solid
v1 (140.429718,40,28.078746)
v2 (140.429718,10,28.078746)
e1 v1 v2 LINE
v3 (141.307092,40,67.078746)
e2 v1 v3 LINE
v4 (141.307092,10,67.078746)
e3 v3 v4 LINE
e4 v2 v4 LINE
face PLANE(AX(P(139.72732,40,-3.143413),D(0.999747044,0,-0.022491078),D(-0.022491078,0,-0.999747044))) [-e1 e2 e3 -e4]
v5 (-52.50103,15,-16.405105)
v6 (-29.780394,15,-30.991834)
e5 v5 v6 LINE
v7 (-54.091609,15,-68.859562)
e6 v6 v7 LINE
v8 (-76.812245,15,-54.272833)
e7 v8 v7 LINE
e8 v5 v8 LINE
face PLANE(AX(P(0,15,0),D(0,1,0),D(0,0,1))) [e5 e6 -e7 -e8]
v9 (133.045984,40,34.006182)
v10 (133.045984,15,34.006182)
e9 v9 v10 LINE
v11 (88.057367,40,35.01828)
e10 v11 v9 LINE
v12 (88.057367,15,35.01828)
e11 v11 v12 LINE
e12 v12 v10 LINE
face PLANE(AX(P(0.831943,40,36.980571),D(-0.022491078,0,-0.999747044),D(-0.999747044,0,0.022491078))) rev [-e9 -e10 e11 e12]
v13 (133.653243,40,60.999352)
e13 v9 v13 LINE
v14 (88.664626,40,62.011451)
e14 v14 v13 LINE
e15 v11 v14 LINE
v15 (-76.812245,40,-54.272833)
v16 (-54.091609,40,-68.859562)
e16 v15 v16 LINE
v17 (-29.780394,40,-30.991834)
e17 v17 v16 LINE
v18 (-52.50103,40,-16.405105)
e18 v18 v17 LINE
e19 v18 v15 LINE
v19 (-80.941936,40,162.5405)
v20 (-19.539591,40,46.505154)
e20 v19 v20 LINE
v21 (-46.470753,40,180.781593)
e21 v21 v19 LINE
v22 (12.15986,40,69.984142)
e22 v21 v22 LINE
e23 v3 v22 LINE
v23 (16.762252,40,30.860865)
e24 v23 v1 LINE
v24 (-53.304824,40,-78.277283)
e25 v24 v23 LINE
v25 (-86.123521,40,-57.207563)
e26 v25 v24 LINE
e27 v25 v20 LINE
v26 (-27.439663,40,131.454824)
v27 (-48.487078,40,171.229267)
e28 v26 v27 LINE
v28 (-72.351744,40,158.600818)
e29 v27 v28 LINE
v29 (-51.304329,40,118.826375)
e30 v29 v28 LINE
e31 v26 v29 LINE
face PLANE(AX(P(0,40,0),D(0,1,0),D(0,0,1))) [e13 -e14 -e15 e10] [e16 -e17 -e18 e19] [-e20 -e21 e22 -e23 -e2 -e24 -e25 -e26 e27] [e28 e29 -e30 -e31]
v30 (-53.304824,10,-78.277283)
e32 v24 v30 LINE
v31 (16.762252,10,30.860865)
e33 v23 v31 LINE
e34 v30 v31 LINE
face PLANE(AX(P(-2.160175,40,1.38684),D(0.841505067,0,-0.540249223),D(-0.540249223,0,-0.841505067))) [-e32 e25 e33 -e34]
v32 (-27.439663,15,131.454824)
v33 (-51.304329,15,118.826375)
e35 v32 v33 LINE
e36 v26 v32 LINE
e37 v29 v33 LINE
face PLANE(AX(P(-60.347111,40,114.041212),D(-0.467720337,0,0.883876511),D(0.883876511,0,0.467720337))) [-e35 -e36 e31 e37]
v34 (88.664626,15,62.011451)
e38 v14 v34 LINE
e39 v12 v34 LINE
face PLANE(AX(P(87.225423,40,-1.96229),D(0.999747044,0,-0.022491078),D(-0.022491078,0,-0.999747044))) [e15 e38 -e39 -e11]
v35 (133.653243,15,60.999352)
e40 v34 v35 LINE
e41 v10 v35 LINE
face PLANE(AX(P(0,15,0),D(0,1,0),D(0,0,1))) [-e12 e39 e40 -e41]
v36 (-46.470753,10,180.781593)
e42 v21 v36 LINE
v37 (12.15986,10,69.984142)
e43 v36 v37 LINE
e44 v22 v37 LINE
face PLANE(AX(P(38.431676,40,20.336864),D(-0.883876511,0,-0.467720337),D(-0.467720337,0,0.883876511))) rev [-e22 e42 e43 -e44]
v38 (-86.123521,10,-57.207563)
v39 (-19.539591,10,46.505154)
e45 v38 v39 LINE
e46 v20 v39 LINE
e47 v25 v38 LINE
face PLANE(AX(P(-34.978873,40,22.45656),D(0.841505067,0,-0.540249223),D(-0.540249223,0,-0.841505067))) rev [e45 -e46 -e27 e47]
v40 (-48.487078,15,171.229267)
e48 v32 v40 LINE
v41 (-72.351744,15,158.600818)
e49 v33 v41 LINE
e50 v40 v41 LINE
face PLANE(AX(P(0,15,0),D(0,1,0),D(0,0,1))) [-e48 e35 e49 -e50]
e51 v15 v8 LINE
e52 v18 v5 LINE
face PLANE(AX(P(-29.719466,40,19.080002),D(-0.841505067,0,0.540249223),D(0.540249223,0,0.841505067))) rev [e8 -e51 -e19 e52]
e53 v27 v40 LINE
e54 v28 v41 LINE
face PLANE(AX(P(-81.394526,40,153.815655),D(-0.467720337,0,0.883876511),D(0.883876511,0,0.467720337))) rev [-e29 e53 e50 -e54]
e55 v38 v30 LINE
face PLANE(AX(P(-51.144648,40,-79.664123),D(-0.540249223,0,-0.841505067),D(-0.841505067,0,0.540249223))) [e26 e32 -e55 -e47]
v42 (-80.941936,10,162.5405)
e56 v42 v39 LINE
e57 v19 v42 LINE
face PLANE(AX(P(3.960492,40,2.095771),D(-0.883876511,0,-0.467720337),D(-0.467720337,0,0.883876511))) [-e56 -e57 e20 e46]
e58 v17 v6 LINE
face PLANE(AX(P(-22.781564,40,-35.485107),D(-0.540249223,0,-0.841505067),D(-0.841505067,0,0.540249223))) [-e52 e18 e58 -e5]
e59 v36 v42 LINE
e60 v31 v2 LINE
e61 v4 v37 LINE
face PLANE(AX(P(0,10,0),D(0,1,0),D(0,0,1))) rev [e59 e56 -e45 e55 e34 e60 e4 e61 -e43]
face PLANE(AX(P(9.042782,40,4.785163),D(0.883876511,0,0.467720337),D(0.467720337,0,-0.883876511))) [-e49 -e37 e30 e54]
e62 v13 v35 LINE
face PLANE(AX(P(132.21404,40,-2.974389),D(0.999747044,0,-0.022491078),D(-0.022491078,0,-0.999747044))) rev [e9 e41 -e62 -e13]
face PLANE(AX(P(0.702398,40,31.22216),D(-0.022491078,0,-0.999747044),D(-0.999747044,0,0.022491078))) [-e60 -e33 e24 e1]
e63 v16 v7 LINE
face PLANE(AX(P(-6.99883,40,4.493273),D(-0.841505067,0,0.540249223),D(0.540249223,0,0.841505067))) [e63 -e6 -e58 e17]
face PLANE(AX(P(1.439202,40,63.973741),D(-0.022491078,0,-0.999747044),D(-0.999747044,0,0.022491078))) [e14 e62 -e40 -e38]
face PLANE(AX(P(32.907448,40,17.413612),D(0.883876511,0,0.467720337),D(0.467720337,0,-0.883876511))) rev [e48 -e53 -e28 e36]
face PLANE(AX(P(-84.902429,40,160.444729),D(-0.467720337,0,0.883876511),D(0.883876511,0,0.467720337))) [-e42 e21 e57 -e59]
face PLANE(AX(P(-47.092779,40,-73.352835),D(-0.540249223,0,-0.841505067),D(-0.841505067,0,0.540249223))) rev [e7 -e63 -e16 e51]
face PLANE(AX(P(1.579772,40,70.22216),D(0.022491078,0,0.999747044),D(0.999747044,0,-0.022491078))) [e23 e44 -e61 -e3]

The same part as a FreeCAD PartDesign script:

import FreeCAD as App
import Part
import Sketcher

doc = App.newDocument("Part")
body = doc.addObject("PartDesign::Body", "Body")

sketch1 = body.newObject("Sketcher::SketchObject", "Sketch")
sketch1.AttachmentSupport = (doc.getObject("XZ_Plane"), [""])
sketch1.MapMode = "FlatFace"
sketch1.addGeometry(Part.LineSegment(App.Vector(-130, -106, 0), App.Vector(-130, 194, 0)), False)
sketch1.addGeometry(Part.LineSegment(App.Vector(-130, 194, 0), App.Vector(170, 194, 0)), False)
sketch1.addGeometry(Part.LineSegment(App.Vector(170, 194, 0), App.Vector(170, -106, 0)), False)
sketch1.addGeometry(Part.LineSegment(App.Vector(170, -106, 0), App.Vector(-130, -106, 0)), False)
sketch1.addConstraint(Sketcher.Constraint("Coincident", 0, 2, 1, 1))
sketch1.addConstraint(Sketcher.Constraint("Coincident", 1, 2, 2, 1))
sketch1.addConstraint(Sketcher.Constraint("Coincident", 2, 2, 3, 1))
sketch1.addConstraint(Sketcher.Constraint("Coincident", 3, 2, 0, 1))
sketch1.addConstraint(Sketcher.Constraint("Vertical", 0))
sketch1.addConstraint(Sketcher.Constraint("Horizontal", 1))
sketch1.addConstraint(Sketcher.Constraint("Vertical", 2))
sketch1.addConstraint(Sketcher.Constraint("Horizontal", 3))
sketch1.addConstraint(Sketcher.Constraint("Equal", 3, 0))
sketch1.addConstraint(Sketcher.Constraint("DistanceX", 1, 1, 1, 2, 300.0))
sketch1.addConstraint(Sketcher.Constraint("DistanceX", 0, 2, -1, 1, 129.644588))
sketch1.addConstraint(Sketcher.Constraint("DistanceY", -1, 1, 0, 2, 194.224556))
pad1 = body.newObject("PartDesign::Pad", "Pad")
pad1.Profile = sketch1
pad1.Length = 10
pad1.Reversed = True

sketch2 = body.newObject("Sketcher::SketchObject", "Sketch001")
sketch2.AttachmentSupport = (doc.getObject("XZ_Plane"), [""])
sketch2.MapMode = "FlatFace"
sketch2.AttachmentOffset = App.Placement(App.Vector(0, 0, -10), App.Rotation())
sketch2.addGeometry(Part.LineSegment(App.Vector(81.307092, 68.428553, 0), App.Vector(141.307092, 67.078746, 0)), False)
sketch2.addGeometry(Part.LineSegment(App.Vector(141.307092, 67.078746, 0), App.Vector(140.429718, 28.078746, 0)), False)
sketch2.addGeometry(Part.LineSegment(App.Vector(140.429718, 28.078746, 0), App.Vector(80.429718, 29.428553, 0)), False)
sketch2.addGeometry(Part.LineSegment(App.Vector(80.429718, 29.428553, 0), App.Vector(16.762252, 30.860865, 0)), False)
sketch2.addGeometry(Part.LineSegment(App.Vector(16.762252, 30.860865, 0), App.Vector(-20.88987, -27.786979, 0)), False)
sketch2.addGeometry(Part.LineSegment(App.Vector(-20.88987, -27.786979, 0), App.Vector(-53.304824, -78.277283, 0)), False)
sketch2.addGeometry(Part.LineSegment(App.Vector(-53.304824, -78.277283, 0), App.Vector(-86.123521, -57.207563, 0)), False)
sketch2.addGeometry(Part.LineSegment(App.Vector(-86.123521, -57.207563, 0), App.Vector(-53.708568, -6.717259, 0)), False)
sketch2.addGeometry(Part.LineSegment(App.Vector(-53.708568, -6.717259, 0), App.Vector(-19.539591, 46.505154, 0)), False)
sketch2.addGeometry(Part.LineSegment(App.Vector(-19.539591, 46.505154, 0), App.Vector(-52.878716, 109.507909, 0)), False)
sketch2.addGeometry(Part.LineSegment(App.Vector(-52.878716, 109.507909, 0), App.Vector(-80.941936, 162.5405, 0)), False)
sketch2.addGeometry(Part.LineSegment(App.Vector(-80.941936, 162.5405, 0), App.Vector(-46.470753, 180.781593, 0)), False)
sketch2.addGeometry(Part.LineSegment(App.Vector(-46.470753, 180.781593, 0), App.Vector(-18.407532, 127.749002, 0)), False)
sketch2.addGeometry(Part.LineSegment(App.Vector(-18.407532, 127.749002, 0), App.Vector(12.15986, 69.984142, 0)), False)
sketch2.addGeometry(Part.LineSegment(App.Vector(12.15986, 69.984142, 0), App.Vector(81.307092, 68.428553, 0)), False)
sketch2.addGeometry(Part.LineSegment(App.Vector(88.664626, 62.011451, 0), App.Vector(88.057367, 35.01828, 0)), False)
sketch2.addGeometry(Part.LineSegment(App.Vector(88.057367, 35.01828, 0), App.Vector(133.045984, 34.006182, 0)), False)
sketch2.addGeometry(Part.LineSegment(App.Vector(133.045984, 34.006182, 0), App.Vector(133.653243, 60.999352, 0)), False)
sketch2.addGeometry(Part.LineSegment(App.Vector(133.653243, 60.999352, 0), App.Vector(88.664626, 62.011451, 0)), False)
sketch2.addGeometry(Part.LineSegment(App.Vector(-72.351744, 158.600818, 0), App.Vector(-51.304329, 118.826375, 0)), False)
sketch2.addGeometry(Part.LineSegment(App.Vector(-51.304329, 118.826375, 0), App.Vector(-27.439663, 131.454824, 0)), False)
sketch2.addGeometry(Part.LineSegment(App.Vector(-27.439663, 131.454824, 0), App.Vector(-48.487078, 171.229267, 0)), False)
sketch2.addGeometry(Part.LineSegment(App.Vector(-48.487078, 171.229267, 0), App.Vector(-72.351744, 158.600818, 0)), False)
sketch2.addGeometry(Part.LineSegment(App.Vector(-54.091609, -68.859562, 0), App.Vector(-29.780394, -30.991834, 0)), False)
sketch2.addGeometry(Part.LineSegment(App.Vector(-29.780394, -30.991834, 0), App.Vector(-52.50103, -16.405105, 0)), False)
sketch2.addGeometry(Part.LineSegment(App.Vector(-52.50103, -16.405105, 0), App.Vector(-76.812245, -54.272833, 0)), False)
sketch2.addGeometry(Part.LineSegment(App.Vector(-76.812245, -54.272833, 0), App.Vector(-54.091609, -68.859562, 0)), False)
sketch2.addConstraint(Sketcher.Constraint("Coincident", 0, 2, 1, 1))
sketch2.addConstraint(Sketcher.Constraint("Coincident", 1, 2, 2, 1))
sketch2.addConstraint(Sketcher.Constraint("Coincident", 2, 2, 3, 1))
sketch2.addConstraint(Sketcher.Constraint("Coincident", 3, 2, 4, 1))
sketch2.addConstraint(Sketcher.Constraint("Coincident", 4, 2, 5, 1))
sketch2.addConstraint(Sketcher.Constraint("Coincident", 5, 2, 6, 1))
sketch2.addConstraint(Sketcher.Constraint("Coincident", 6, 2, 7, 1))
sketch2.addConstraint(Sketcher.Constraint("Coincident", 7, 2, 8, 1))
sketch2.addConstraint(Sketcher.Constraint("Coincident", 8, 2, 9, 1))
sketch2.addConstraint(Sketcher.Constraint("Coincident", 9, 2, 10, 1))
sketch2.addConstraint(Sketcher.Constraint("Coincident", 10, 2, 11, 1))
sketch2.addConstraint(Sketcher.Constraint("Coincident", 11, 2, 12, 1))
sketch2.addConstraint(Sketcher.Constraint("Coincident", 12, 2, 13, 1))
sketch2.addConstraint(Sketcher.Constraint("Coincident", 13, 2, 14, 1))
sketch2.addConstraint(Sketcher.Constraint("Coincident", 14, 2, 0, 1))
sketch2.addConstraint(Sketcher.Constraint("Coincident", 15, 2, 16, 1))
sketch2.addConstraint(Sketcher.Constraint("Coincident", 16, 2, 17, 1))
sketch2.addConstraint(Sketcher.Constraint("Coincident", 17, 2, 18, 1))
sketch2.addConstraint(Sketcher.Constraint("Coincident", 18, 2, 15, 1))
sketch2.addConstraint(Sketcher.Constraint("Coincident", 19, 2, 20, 1))
sketch2.addConstraint(Sketcher.Constraint("Coincident", 20, 2, 21, 1))
sketch2.addConstraint(Sketcher.Constraint("Coincident", 21, 2, 22, 1))
sketch2.addConstraint(Sketcher.Constraint("Coincident", 22, 2, 19, 1))
sketch2.addConstraint(Sketcher.Constraint("Coincident", 23, 2, 24, 1))
sketch2.addConstraint(Sketcher.Constraint("Coincident", 24, 2, 25, 1))
sketch2.addConstraint(Sketcher.Constraint("Coincident", 25, 2, 26, 1))
sketch2.addConstraint(Sketcher.Constraint("Coincident", 26, 2, 23, 1))
sketch2.addConstraint(Sketcher.Constraint("Distance", 5, 60.0))
sketch2.addConstraint(Sketcher.Constraint("Distance", 6, 39.0))
sketch2.addConstraint(Sketcher.Constraint("Distance", 7, 60.0))
sketch2.addConstraint(Sketcher.Constraint("Distance", 10, 60.0))
sketch2.addConstraint(Sketcher.Constraint("Distance", 11, 39.0))
sketch2.addConstraint(Sketcher.Constraint("Distance", 12, 60.0))
sketch2.addConstraint(Sketcher.Constraint("Distance", 15, 27.0))
sketch2.addConstraint(Sketcher.Constraint("Distance", 16, 45.0))
sketch2.addConstraint(Sketcher.Constraint("Distance", 17, 27.0))
sketch2.addConstraint(Sketcher.Constraint("Distance", 18, 45.0))
sketch2.addConstraint(Sketcher.Constraint("Distance", 19, 45.0))
sketch2.addConstraint(Sketcher.Constraint("Distance", 20, 27.0))
sketch2.addConstraint(Sketcher.Constraint("Distance", 21, 45.0))
sketch2.addConstraint(Sketcher.Constraint("Distance", 22, 27.0))
sketch2.addConstraint(Sketcher.Constraint("Distance", 23, 45.0))
sketch2.addConstraint(Sketcher.Constraint("Distance", 24, 27.0))
sketch2.addConstraint(Sketcher.Constraint("Distance", 25, 45.0))
sketch2.addConstraint(Sketcher.Constraint("Distance", 26, 27.0))
sketch2.addConstraint(Sketcher.Constraint("DistanceY", 1, 2, 0, 2, 39.0))
sketch2.addConstraint(Sketcher.Constraint("DistanceX", 2, 2, 1, 2, 60.0))
sketch2.addConstraint(Sketcher.Constraint("DistanceY", 2, 2, 14, 2, 39.0))
sketch2.addConstraint(Sketcher.Constraint("DistanceX", 14, 2, 0, 2, 60.0))
sketch2.addConstraint(Sketcher.Constraint("DistanceY", 25, 2, 23, 2, 23.280999))
sketch2.addConstraint(Sketcher.Constraint("DistanceY", 26, 2, 6, 2, 11.651999))
sketch2.addConstraint(Sketcher.Constraint("DistanceY", -1, 1, 10, 2, 162.5405))
sketch2.addConstraint(Sketcher.Constraint("DistanceY", 2, 2, 8, 2, 17.076601))
sketch2.addConstraint(Sketcher.Constraint("DistanceY", 16, 2, 15, 2, 1.012099))
sketch2.addConstraint(Sketcher.Constraint("DistanceY", 17, 2, 14, 2, 7.429201))
sketch2.addConstraint(Sketcher.Constraint("DistanceY", 23, 2, 3, 2, 61.852699))
sketch2.addConstraint(Sketcher.Constraint("Distance", 0, 60.015181))
sketch2.addConstraint(Sketcher.Constraint("Distance", 14, 69.164728))
sketch2.addConstraint(Sketcher.Constraint("DistanceX", -1, 1, 1, 2, 140.429718))
sketch2.addConstraint(Sketcher.Constraint("DistanceX", 4, 2, -1, 1, 20.88987))
sketch2.addConstraint(Sketcher.Constraint("DistanceY", 4, 2, -1, 1, 27.786979))
sketch2.addConstraint(Sketcher.Constraint("DistanceX", 6, 2, -1, 1, 86.123521))
sketch2.addConstraint(Sketcher.Constraint("DistanceY", 7, 2, -1, 1, 6.717259))
sketch2.addConstraint(Sketcher.Constraint("DistanceX", 8, 2, -1, 1, 19.539591))
sketch2.addConstraint(Sketcher.Constraint("DistanceY", -1, 1, 9, 2, 109.507909))
sketch2.addConstraint(Sketcher.Constraint("DistanceX", -1, 1, 13, 2, 12.15986))
sketch2.addConstraint(Sketcher.Constraint("DistanceY", -1, 1, 13, 2, 69.984142))
sketch2.addConstraint(Sketcher.Constraint("DistanceY", -1, 1, 15, 2, 35.01828))
sketch2.addConstraint(Sketcher.Constraint("DistanceY", -1, 1, 17, 2, 60.999352))
sketch2.addConstraint(Sketcher.Constraint("DistanceX", 19, 2, -1, 1, 51.304329))
sketch2.addConstraint(Sketcher.Constraint("DistanceX", 21, 2, -1, 1, 48.487078))
sketch2.addConstraint(Sketcher.Constraint("DistanceX", 24, 2, -1, 1, 52.50103))
sketch2.addConstraint(Sketcher.Constraint("DistanceX", 26, 2, -1, 1, 54.091609))
sketch2.addConstraint(Sketcher.Constraint("DistanceY", 26, 2, -1, 1, 68.859562))
sketch2.addConstraint(Sketcher.Constraint("DistanceX", 3, 2, 0, 2, 124.54484))
sketch2.addConstraint(Sketcher.Constraint("DistanceX", 9, 2, 3, 2, 69.640969))
sketch2.addConstraint(Sketcher.Constraint("DistanceX", 11, 2, 8, 2, 26.931162))
sketch2.addConstraint(Sketcher.Constraint("DistanceX", 11, 2, 12, 2, 28.06322))
sketch2.addConstraint(Sketcher.Constraint("DistanceX", 2, 2, 15, 2, 7.627648))
sketch2.addConstraint(Sketcher.Constraint("DistanceY", 19, 2, 11, 2, 61.955218))
sketch2.addConstraint(Sketcher.Constraint("DistanceX", 20, 2, 12, 2, 9.032131))
pad2 = body.newObject("PartDesign::Pad", "Pad001")
pad2.Profile = sketch2
pad2.Length = 30
pad2.Reversed = True

sketch3 = body.newObject("Sketcher::SketchObject", "Sketch002")
sketch3.AttachmentSupport = (doc.getObject("XZ_Plane"), [""])
sketch3.MapMode = "FlatFace"
sketch3.addGeometry(Part.LineSegment(App.Vector(-130, -106, 0), App.Vector(-130, 194, 0)), False)
sketch3.addGeometry(Part.LineSegment(App.Vector(-130, 194, 0), App.Vector(170, 194, 0)), False)
sketch3.addGeometry(Part.LineSegment(App.Vector(170, 194, 0), App.Vector(170, -106, 0)), False)
sketch3.addGeometry(Part.LineSegment(App.Vector(170, -106, 0), App.Vector(-130, -106, 0)), False)
sketch3.addConstraint(Sketcher.Constraint("Coincident", 0, 2, 1, 1))
sketch3.addConstraint(Sketcher.Constraint("Coincident", 1, 2, 2, 1))
sketch3.addConstraint(Sketcher.Constraint("Coincident", 2, 2, 3, 1))
sketch3.addConstraint(Sketcher.Constraint("Coincident", 3, 2, 0, 1))
sketch3.addConstraint(Sketcher.Constraint("Vertical", 0))
sketch3.addConstraint(Sketcher.Constraint("Horizontal", 1))
sketch3.addConstraint(Sketcher.Constraint("Vertical", 2))
sketch3.addConstraint(Sketcher.Constraint("Horizontal", 3))
sketch3.addConstraint(Sketcher.Constraint("Equal", 3, 0))
sketch3.addConstraint(Sketcher.Constraint("DistanceX", 1, 1, 1, 2, 300.0))
sketch3.addConstraint(Sketcher.Constraint("DistanceX", 0, 2, -1, 1, 129.644588))
sketch3.addConstraint(Sketcher.Constraint("DistanceY", -1, 1, 0, 2, 194.224556))
pocket1 = body.newObject("PartDesign::Pocket", "Pocket")
pocket1.Profile = sketch3
pocket1.Length = 10

sketch4 = body.newObject("Sketcher::SketchObject", "Sketch003")
sketch4.AttachmentSupport = (doc.getObject("XZ_Plane"), [""])
sketch4.MapMode = "FlatFace"
sketch4.AttachmentOffset = App.Placement(App.Vector(0, 0, -10), App.Rotation())
sketch4.addGeometry(Part.LineSegment(App.Vector(-27, 131, 0), App.Vector(-51, 119, 0)), False)
sketch4.addGeometry(Part.LineSegment(App.Vector(-51, 119, 0), App.Vector(-72, 159, 0)), False)
sketch4.addGeometry(Part.LineSegment(App.Vector(-72, 159, 0), App.Vector(-48, 171, 0)), False)
sketch4.addGeometry(Part.LineSegment(App.Vector(-48, 171, 0), App.Vector(-27, 131, 0)), False)
sketch4.addGeometry(Part.LineSegment(App.Vector(-53, -16, 0), App.Vector(-30, -31, 0)), False)
sketch4.addGeometry(Part.LineSegment(App.Vector(-30, -31, 0), App.Vector(-54, -69, 0)), False)
sketch4.addGeometry(Part.LineSegment(App.Vector(-54, -69, 0), App.Vector(-77, -54, 0)), False)
sketch4.addGeometry(Part.LineSegment(App.Vector(-77, -54, 0), App.Vector(-53, -16, 0)), False)
sketch4.addGeometry(Part.LineSegment(App.Vector(88, 35, 0), App.Vector(89, 62, 0)), False)
sketch4.addGeometry(Part.LineSegment(App.Vector(89, 62, 0), App.Vector(134, 61, 0)), False)
sketch4.addGeometry(Part.LineSegment(App.Vector(134, 61, 0), App.Vector(133, 34, 0)), False)
sketch4.addGeometry(Part.LineSegment(App.Vector(133, 34, 0), App.Vector(88, 35, 0)), False)
sketch4.addConstraint(Sketcher.Constraint("Coincident", 0, 2, 1, 1))
sketch4.addConstraint(Sketcher.Constraint("Coincident", 1, 2, 2, 1))
sketch4.addConstraint(Sketcher.Constraint("Coincident", 2, 2, 3, 1))
sketch4.addConstraint(Sketcher.Constraint("Coincident", 3, 2, 0, 1))
sketch4.addConstraint(Sketcher.Constraint("Coincident", 4, 2, 5, 1))
sketch4.addConstraint(Sketcher.Constraint("Coincident", 5, 2, 6, 1))
sketch4.addConstraint(Sketcher.Constraint("Coincident", 6, 2, 7, 1))
sketch4.addConstraint(Sketcher.Constraint("Coincident", 7, 2, 4, 1))
sketch4.addConstraint(Sketcher.Constraint("Coincident", 8, 2, 9, 1))
sketch4.addConstraint(Sketcher.Constraint("Coincident", 9, 2, 10, 1))
sketch4.addConstraint(Sketcher.Constraint("Coincident", 10, 2, 11, 1))
sketch4.addConstraint(Sketcher.Constraint("Coincident", 11, 2, 8, 1))
sketch4.addConstraint(Sketcher.Constraint("Perpendicular", 0, 1))
sketch4.addConstraint(Sketcher.Constraint("Perpendicular", 1, 2))
sketch4.addConstraint(Sketcher.Constraint("Perpendicular", 2, 3))
sketch4.addConstraint(Sketcher.Constraint("Perpendicular", 4, 5))
sketch4.addConstraint(Sketcher.Constraint("Perpendicular", 5, 6))
sketch4.addConstraint(Sketcher.Constraint("Perpendicular", 6, 7))
sketch4.addConstraint(Sketcher.Constraint("Perpendicular", 8, 9))
sketch4.addConstraint(Sketcher.Constraint("Perpendicular", 9, 10))
sketch4.addConstraint(Sketcher.Constraint("Perpendicular", 10, 11))
sketch4.addConstraint(Sketcher.Constraint("Equal", 2, 4))
sketch4.addConstraint(Sketcher.Constraint("Equal", 3, 5))
sketch4.addConstraint(Sketcher.Constraint("Equal", 6, 8))
sketch4.addConstraint(Sketcher.Constraint("Equal", 7, 9))
sketch4.addConstraint(Sketcher.Constraint("Distance", 0, 27.0))
sketch4.addConstraint(Sketcher.Constraint("Distance", 1, 45.0))
sketch4.addConstraint(Sketcher.Constraint("DistanceY", 6, 2, 4, 2, 23.280999))
sketch4.addConstraint(Sketcher.Constraint("DistanceY", 4, 2, 2, 2, 202.221101))
sketch4.addConstraint(Sketcher.Constraint("DistanceX", 6, 2, 1, 2, 4.460501))
sketch4.addConstraint(Sketcher.Constraint("DistanceX", 7, 2, 0, 2, 1.196702))
sketch4.addConstraint(Sketcher.Constraint("DistanceY", 9, 2, 8, 2, 1.012099))
sketch4.addConstraint(Sketcher.Constraint("DistanceX", 0, 2, -1, 1, 51.304329))
sketch4.addConstraint(Sketcher.Constraint("DistanceY", 5, 2, -1, 1, 68.859562))
sketch4.addConstraint(Sketcher.Constraint("DistanceY", -1, 1, 8, 2, 62.011451))
sketch4.addConstraint(Sketcher.Constraint("DistanceX", 3, 2, 8, 2, 116.104289))
pad3 = body.newObject("PartDesign::Pad", "Pad002")
pad3.Profile = sketch4
pad3.Length = 5
pad3.Reversed = True

doc.recompute()
